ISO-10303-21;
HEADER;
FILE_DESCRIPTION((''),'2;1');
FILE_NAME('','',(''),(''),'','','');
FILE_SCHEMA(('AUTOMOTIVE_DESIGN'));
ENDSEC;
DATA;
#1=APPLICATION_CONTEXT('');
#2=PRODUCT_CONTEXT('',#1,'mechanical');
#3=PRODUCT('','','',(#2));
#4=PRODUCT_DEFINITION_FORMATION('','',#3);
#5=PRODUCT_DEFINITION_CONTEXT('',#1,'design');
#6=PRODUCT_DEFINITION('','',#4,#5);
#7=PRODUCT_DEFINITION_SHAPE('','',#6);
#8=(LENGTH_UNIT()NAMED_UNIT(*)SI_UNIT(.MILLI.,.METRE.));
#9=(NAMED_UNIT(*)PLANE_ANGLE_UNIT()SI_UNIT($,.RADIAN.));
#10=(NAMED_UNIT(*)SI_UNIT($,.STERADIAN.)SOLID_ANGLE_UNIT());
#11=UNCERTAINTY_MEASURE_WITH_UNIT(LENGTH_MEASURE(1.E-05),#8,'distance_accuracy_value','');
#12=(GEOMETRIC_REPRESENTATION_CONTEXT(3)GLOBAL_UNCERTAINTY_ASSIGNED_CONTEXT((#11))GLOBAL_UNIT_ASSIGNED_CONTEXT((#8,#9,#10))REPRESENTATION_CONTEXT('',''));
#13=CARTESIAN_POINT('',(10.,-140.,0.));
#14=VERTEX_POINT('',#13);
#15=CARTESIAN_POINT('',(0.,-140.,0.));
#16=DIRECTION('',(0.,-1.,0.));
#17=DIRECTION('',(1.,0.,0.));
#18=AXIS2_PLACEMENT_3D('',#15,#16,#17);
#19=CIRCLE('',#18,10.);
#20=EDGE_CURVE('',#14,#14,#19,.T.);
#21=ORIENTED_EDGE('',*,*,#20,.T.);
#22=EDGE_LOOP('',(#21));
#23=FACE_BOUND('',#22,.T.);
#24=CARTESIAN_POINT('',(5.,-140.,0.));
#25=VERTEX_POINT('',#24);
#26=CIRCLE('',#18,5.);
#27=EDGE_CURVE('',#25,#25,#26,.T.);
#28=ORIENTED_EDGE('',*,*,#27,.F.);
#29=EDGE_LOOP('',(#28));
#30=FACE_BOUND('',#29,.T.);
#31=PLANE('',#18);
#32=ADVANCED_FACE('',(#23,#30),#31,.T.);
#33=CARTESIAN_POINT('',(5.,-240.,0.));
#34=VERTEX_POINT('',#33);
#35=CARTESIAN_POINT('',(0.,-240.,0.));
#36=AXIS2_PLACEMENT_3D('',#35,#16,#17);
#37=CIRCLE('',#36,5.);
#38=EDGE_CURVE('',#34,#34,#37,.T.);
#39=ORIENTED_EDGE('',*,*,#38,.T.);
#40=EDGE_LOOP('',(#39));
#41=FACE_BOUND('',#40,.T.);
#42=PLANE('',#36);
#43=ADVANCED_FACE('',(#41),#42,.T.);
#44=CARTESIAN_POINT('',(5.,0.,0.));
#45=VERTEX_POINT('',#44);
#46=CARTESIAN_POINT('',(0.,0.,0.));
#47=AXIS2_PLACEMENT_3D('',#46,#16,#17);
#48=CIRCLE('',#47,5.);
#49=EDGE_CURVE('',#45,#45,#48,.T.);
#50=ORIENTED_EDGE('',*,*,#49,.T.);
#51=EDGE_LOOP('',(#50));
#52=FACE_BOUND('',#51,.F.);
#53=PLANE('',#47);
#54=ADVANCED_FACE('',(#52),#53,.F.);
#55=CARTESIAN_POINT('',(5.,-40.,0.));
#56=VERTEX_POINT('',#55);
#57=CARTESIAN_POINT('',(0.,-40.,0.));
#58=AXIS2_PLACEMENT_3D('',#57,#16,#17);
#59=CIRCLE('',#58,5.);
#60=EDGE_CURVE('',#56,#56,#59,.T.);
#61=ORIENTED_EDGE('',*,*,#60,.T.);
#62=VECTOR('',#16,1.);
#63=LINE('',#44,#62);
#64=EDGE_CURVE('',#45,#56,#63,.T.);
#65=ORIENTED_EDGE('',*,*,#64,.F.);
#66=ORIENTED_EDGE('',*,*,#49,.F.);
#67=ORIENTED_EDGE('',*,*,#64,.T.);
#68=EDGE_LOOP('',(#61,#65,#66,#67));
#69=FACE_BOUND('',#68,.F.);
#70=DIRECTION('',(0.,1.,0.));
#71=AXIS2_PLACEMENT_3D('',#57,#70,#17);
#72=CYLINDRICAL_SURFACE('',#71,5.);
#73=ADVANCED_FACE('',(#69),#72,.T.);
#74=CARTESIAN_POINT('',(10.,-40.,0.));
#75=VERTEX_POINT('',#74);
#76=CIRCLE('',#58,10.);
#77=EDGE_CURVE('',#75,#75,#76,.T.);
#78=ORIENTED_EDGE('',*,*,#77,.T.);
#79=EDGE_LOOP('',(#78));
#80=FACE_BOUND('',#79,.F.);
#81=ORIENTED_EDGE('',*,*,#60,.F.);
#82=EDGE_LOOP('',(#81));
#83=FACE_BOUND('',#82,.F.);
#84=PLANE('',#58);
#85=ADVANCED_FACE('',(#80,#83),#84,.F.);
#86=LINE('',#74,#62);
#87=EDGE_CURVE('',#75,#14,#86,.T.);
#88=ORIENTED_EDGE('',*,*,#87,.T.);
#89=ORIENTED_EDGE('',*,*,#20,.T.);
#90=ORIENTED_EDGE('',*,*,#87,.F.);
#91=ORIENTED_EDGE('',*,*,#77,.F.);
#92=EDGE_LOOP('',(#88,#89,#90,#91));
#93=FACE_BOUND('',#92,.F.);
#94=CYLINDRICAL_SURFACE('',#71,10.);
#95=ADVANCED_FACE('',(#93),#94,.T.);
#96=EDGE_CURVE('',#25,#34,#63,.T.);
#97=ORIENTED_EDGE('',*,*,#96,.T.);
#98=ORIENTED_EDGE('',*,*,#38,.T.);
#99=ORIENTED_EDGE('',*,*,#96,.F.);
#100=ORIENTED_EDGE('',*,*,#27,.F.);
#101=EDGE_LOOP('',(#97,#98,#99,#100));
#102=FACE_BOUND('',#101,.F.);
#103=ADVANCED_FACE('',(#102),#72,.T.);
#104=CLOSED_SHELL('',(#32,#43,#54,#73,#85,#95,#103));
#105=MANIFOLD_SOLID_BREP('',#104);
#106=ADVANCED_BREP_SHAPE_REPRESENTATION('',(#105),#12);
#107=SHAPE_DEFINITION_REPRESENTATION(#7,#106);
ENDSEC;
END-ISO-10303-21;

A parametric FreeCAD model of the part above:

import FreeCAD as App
import Part
import Sketcher
from FreeCAD import Vector

doc = App.newDocument("Part")
body = doc.addObject("PartDesign::Body", "Body")

sketch1 = body.newObject("Sketcher::SketchObject", "Sketch")
sketch1.AttachmentSupport = (doc.getObject("XZ_Plane"), [""])
sketch1.MapMode = "FlatFace"
sketch1.addGeometry(Part.Circle(Vector(0, 0, 0), Vector(0, 0, 1), 5), False)
sketch1.addConstraint([
    Sketcher.Constraint("Coincident", 0, 3, -1, 1),
    Sketcher.Constraint("Diameter", 0, 10.0),
])
pad1 = body.newObject("PartDesign::Pad", "Pad")
pad1.Profile = sketch1
pad1.Length = 40

sketch2 = body.newObject("Sketcher::SketchObject", "Sketch001")
sketch2.AttachmentSupport = (doc.getObject("XZ_Plane"), [""])
sketch2.MapMode = "FlatFace"
sketch2.AttachmentOffset = App.Placement(Vector(0, 0, 40), App.Rotation())
sketch2.addGeometry(Part.Circle(Vector(0, 0, 0), Vector(0, 0, 1), 5), False)
sketch2.addConstraint([
    Sketcher.Constraint("Coincident", 0, 3, -1, 1),
    Sketcher.Constraint("Diameter", 0, 10.0),
])
pad2 = body.newObject("PartDesign::Pad", "Pad001")
pad2.Profile = sketch2
pad2.Length = 200

sketch3 = body.newObject("Sketcher::SketchObject", "Sketch002")
sketch3.AttachmentSupport = (doc.getObject("XZ_Plane"), [""])
sketch3.MapMode = "FlatFace"
sketch3.AttachmentOffset = App.Placement(Vector(0, 0, 40), App.Rotation())
sketch3.addGeometry([
    Part.Circle(Vector(0, 0, 0), Vector(0, 0, 1), 10),
    Part.Circle(Vector(0, 0, 0), Vector(0, 0, 1), 5),
], False)
sketch3.addConstraint([
    Sketcher.Constraint("Coincident", 0, 3, -1, 1),
    Sketcher.Constraint("Coincident", 1, 3, -1, 1),
    Sketcher.Constraint("Diameter", 0, 20.0),
    Sketcher.Constraint("Diameter", 1, 10.0),
])
pad3 = body.newObject("PartDesign::Pad", "Pad002")
pad3.Profile = sketch3
pad3.Length = 100

doc.recompute()
